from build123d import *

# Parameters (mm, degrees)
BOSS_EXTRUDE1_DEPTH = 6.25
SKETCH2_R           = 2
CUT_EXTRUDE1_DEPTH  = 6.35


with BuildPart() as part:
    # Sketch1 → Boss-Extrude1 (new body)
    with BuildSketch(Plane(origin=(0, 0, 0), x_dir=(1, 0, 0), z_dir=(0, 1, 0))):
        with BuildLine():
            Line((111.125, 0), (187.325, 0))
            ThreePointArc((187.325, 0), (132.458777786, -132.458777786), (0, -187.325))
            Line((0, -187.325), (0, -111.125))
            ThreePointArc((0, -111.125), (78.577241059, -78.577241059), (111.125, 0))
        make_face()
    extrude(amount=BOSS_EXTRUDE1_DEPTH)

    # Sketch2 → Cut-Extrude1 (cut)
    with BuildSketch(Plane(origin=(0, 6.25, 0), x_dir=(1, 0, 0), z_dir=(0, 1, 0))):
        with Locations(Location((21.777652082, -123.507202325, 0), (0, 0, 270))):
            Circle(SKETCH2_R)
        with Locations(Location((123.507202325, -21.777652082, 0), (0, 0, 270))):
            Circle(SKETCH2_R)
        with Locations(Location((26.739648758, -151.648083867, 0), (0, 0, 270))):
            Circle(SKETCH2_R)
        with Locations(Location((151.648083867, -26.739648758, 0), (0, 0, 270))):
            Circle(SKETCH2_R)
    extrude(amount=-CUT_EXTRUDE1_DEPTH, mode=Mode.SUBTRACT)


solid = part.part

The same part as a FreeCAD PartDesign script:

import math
import FreeCAD as App
import Part
import Sketcher
Q = App.Units.Quantity

doc = App.newDocument("Part")
body = doc.addObject("PartDesign::Body", "Body")

sketch1 = doc.addObject("Sketcher::SketchObject", "Sketch")
body.addObject(sketch1)
sketch1.AttachmentSupport = (doc.XZ_Plane, [""])
sketch1.MapMode = "FlatFace"
sketch1.addGeometry([
    Part.LineSegment(App.Vector(187, 0, 0), App.Vector(111, 0, 0)),
    Part.ArcOfCircle(Part.Circle(App.Vector(0, 0, 0), App.Vector(0, 0, 1), 111), math.radians(0), math.radians(90)),
    Part.LineSegment(App.Vector(0, 111, 0), App.Vector(0, 187, 0)),
    Part.ArcOfCircle(Part.Circle(App.Vector(0, 0, 0), App.Vector(0, 0, 1), 187), math.radians(0), math.radians(90)),
], False)
sketch1.addConstraint([
    Sketcher.Constraint("Coincident", 0, 2, 1, 1),
    Sketcher.Constraint("Coincident", 1, 2, 2, 1),
    Sketcher.Constraint("Coincident", 2, 2, 3, 2),
    Sketcher.Constraint("Coincident", 3, 1, 0, 1),
    Sketcher.Constraint("Horizontal", 0),
    Sketcher.Constraint("Vertical", 2),
    Sketcher.Constraint("Coincident", 1, 3, -1, 1),
    Sketcher.Constraint("Coincident", 3, 3, -1, 1),
    Sketcher.Constraint("PointOnObject", 0, 2, -1),
    Sketcher.Constraint("PointOnObject", 1, 2, -2),
    Sketcher.Constraint("DistanceX", 0, 2, 0, 1, Q("3 in")),
    Sketcher.Constraint("Radius", 1, Q("4.375 in")),
])
pad1 = doc.addObject("PartDesign::Pad", "Pad")
body.addObject(pad1)
pad1.Profile = sketch1
pad1.Length = 6.25
pad1.Reversed = True

sketch2 = doc.addObject("Sketcher::SketchObject", "Sketch001")
body.addObject(sketch2)
sketch2.AttachmentSupport = (doc.XZ_Plane, [""])
sketch2.MapMode = "FlatFace"
sketch2.AttachmentOffset = App.Placement(App.Vector(0, 0, -6.25), App.Rotation())
sketch2.addGeometry([
    Part.Circle(App.Vector(21.8, 123.5, 0), App.Vector(0, 0, 1), 2),
    Part.Circle(App.Vector(123.5, 21.8, 0), App.Vector(0, 0, 1), 2),
    Part.Circle(App.Vector(26.7, 151.6, 0), App.Vector(0, 0, 1), 2),
    Part.Circle(App.Vector(151.6, 26.7, 0), App.Vector(0, 0, 1), 2),
], False)
sketch2.addConstraint([
    Sketcher.Constraint("Equal", 0, 1),
    Sketcher.Constraint("Equal", 1, 2),
    Sketcher.Constraint("Equal", 2, 3),
    Sketcher.Constraint("Diameter", 0, Q("4 mm")),
    Sketcher.Constraint("DistanceX", -1, 1, 2, 3, Q("26.739649 mm")),
    Sketcher.Constraint("DistanceY", -1, 1, 3, 3, Q("26.739649 mm")),
    Sketcher.Constraint("DistanceX", 0, 3, 1, 3, Q("101.72955 mm")),
    Sketcher.Constraint("DistanceY", 1, 3, 0, 3, Q("101.72955 mm")),
    Sketcher.Constraint("DistanceY", 0, 3, 2, 3, Q("28.140882 mm")),
    Sketcher.Constraint("DistanceX", 1, 3, 3, 3, Q("28.140882 mm")),
    Sketcher.Constraint("DistanceX", -1, 1, 0, 3, Q("21.777652 mm")),
    Sketcher.Constraint("DistanceY", -1, 1, 0, 3, Q("123.507202 mm")),
])
pocket1 = doc.addObject("PartDesign::Pocket", "Pocket")
body.addObject(pocket1)
pocket1.Profile = sketch2
pocket1.Length = Q("0.25 in")
pocket1.Reversed = True

doc.recompute()
